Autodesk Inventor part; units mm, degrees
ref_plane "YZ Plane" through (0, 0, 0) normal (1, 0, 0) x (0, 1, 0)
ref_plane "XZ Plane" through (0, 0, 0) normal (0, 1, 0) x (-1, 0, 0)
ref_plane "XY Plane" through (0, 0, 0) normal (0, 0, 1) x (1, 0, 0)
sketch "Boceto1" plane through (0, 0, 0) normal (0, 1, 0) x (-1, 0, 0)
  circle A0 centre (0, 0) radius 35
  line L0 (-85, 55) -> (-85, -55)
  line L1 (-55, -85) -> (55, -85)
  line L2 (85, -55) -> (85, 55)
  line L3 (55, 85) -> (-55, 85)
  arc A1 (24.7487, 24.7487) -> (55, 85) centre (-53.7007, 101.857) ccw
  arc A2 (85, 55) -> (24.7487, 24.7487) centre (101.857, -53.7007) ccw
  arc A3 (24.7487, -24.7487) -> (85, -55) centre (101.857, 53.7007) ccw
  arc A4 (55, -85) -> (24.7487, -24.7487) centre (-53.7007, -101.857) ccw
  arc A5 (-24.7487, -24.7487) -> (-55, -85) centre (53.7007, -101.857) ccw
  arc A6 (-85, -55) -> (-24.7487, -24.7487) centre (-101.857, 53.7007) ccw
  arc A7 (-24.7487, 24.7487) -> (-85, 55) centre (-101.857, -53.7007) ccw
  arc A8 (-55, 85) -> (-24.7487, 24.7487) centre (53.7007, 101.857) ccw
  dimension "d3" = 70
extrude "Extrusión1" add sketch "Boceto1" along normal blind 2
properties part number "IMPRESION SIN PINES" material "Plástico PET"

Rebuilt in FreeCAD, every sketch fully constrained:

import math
import FreeCAD as App
import Part
import Sketcher

V = App.Vector
Q = App.Units.Quantity

doc = App.newDocument("Part")
body = doc.addObject("PartDesign::Body", "Body")

# Sketch on XZ plane
sketch1 = body.newObject("Sketcher::SketchObject", "Sketch")
sketch1.AttachmentSupport = (doc.getObject("XZ_Plane"), [""])
sketch1.MapMode = "FlatFace"
sketch1.addGeometry(Part.ArcOfCircle(Part.Circle(V(-101.857, 53.7007, 0), V(0, 0, 1), 109.999992), math.radians(-81.184948), math.radians(-45.493948)), False)
sketch1.addGeometry(Part.LineSegment(V(-85, -55, 0), V(-85, 55, 0)), False)
sketch1.addGeometry(Part.ArcOfCircle(Part.Circle(V(-101.857, -53.7007, 0), V(0, 0, 1), 110.000003), math.radians(45.493948), math.radians(81.184948)), False)
sketch1.addGeometry(Part.ArcOfCircle(Part.Circle(V(53.7007, 101.857, 0), V(0, 0, 1), 109.999992), math.radians(-171.184948), math.radians(-135.493948)), False)
sketch1.addGeometry(Part.LineSegment(V(-55, 85, 0), V(55, 85, 0)), False)
sketch1.addGeometry(Part.ArcOfCircle(Part.Circle(V(-53.7007, 101.857, 0), V(0, 0, 1), 110.000003), math.radians(-44.506052), math.radians(-8.815052)), False)
sketch1.addGeometry(Part.ArcOfCircle(Part.Circle(V(101.857, -53.7007, 0), V(0, 0, 1), 109.999992), math.radians(98.815052), math.radians(134.506052)), False)
sketch1.addGeometry(Part.LineSegment(V(85, 55, 0), V(85, -55, 0)), False)
sketch1.addGeometry(Part.ArcOfCircle(Part.Circle(V(101.857, 53.7007, 0), V(0, 0, 1), 110.000003), math.radians(-134.506052), math.radians(-98.815052)), False)
sketch1.addGeometry(Part.ArcOfCircle(Part.Circle(V(-53.7007, -101.857, 0), V(0, 0, 1), 109.999992), math.radians(8.815052), math.radians(44.506052)), False)
sketch1.addGeometry(Part.LineSegment(V(55, -85, 0), V(-55, -85, 0)), False)
sketch1.addGeometry(Part.ArcOfCircle(Part.Circle(V(53.7007, -101.857, 0), V(0, 0, 1), 110.000003), math.radians(135.493948), math.radians(171.184948)), False)
sketch1.addConstraint(Sketcher.Constraint("Coincident", 0, 1, 1, 1))
sketch1.addConstraint(Sketcher.Constraint("Coincident", 1, 2, 2, 2))
sketch1.addConstraint(Sketcher.Constraint("Coincident", 2, 1, 3, 2))
sketch1.addConstraint(Sketcher.Constraint("Coincident", 3, 1, 4, 1))
sketch1.addConstraint(Sketcher.Constraint("Coincident", 4, 2, 5, 2))
sketch1.addConstraint(Sketcher.Constraint("Coincident", 5, 1, 6, 2))
sketch1.addConstraint(Sketcher.Constraint("Coincident", 6, 1, 7, 1))
sketch1.addConstraint(Sketcher.Constraint("Coincident", 7, 2, 8, 2))
sketch1.addConstraint(Sketcher.Constraint("Coincident", 8, 1, 9, 2))
sketch1.addConstraint(Sketcher.Constraint("Coincident", 9, 1, 10, 1))
sketch1.addConstraint(Sketcher.Constraint("Coincident", 10, 2, 11, 2))
sketch1.addConstraint(Sketcher.Constraint("Coincident", 11, 1, 0, 2))
sketch1.addConstraint(Sketcher.Constraint("Vertical", 1))
sketch1.addConstraint(Sketcher.Constraint("Horizontal", 4))
sketch1.addConstraint(Sketcher.Constraint("Vertical", 7))
sketch1.addConstraint(Sketcher.Constraint("Horizontal", 10))
sketch1.addConstraint(Sketcher.Constraint("Equal", 0, 2))
sketch1.addConstraint(Sketcher.Constraint("Equal", 2, 3))
sketch1.addConstraint(Sketcher.Constraint("Equal", 3, 5))
sketch1.addConstraint(Sketcher.Constraint("Equal", 5, 6))
sketch1.addConstraint(Sketcher.Constraint("Equal", 6, 8))
sketch1.addConstraint(Sketcher.Constraint("Equal", 8, 9))
sketch1.addConstraint(Sketcher.Constraint("Equal", 9, 11))
sketch1.addConstraint(Sketcher.Constraint("Symmetric", 0, 3, 6, 3, -1, 1))
sketch1.addConstraint(Sketcher.Constraint("Symmetric", 2, 3, 8, 3, -1, 1))
sketch1.addConstraint(Sketcher.Constraint("Symmetric", 3, 3, 9, 3, -1, 1))
sketch1.addConstraint(Sketcher.Constraint("Symmetric", 5, 3, 11, 3, -1, 1))
sketch1.addConstraint(Sketcher.Constraint("Symmetric", 3, 3, 5, 3, -2))
sketch1.addConstraint(Sketcher.Constraint("Symmetric", 2, 3, 6, 3, -2))
sketch1.addConstraint(Sketcher.Constraint("Horizontal", 1, 2, 6, 1))
sketch1.addConstraint(Sketcher.Constraint("Vertical", 4, 2, 9, 1))
sketch1.addConstraint(Sketcher.Constraint("Equal", 10, 1))
sketch1.addConstraint(Sketcher.Constraint("Radius", 0, Q("110 mm")))
sketch1.addConstraint(Sketcher.Constraint("DistanceX", 4, 1, 4, 2, Q("110 mm")))
sketch1.addConstraint(Sketcher.Constraint("DistanceX", 0, 1, -1, 1, Q("85 mm")))
sketch1.addConstraint(Sketcher.Constraint("DistanceY", -1, 1, 3, 1, Q("85 mm")))
sketch1.addConstraint(Sketcher.Constraint("DistanceX", 0, 3, -1, 1, Q("101.857 mm")))
sketch1.addConstraint(Sketcher.Constraint("DistanceY", -1, 1, 3, 3, Q("101.857 mm")))
pad1 = body.newObject("PartDesign::Pad", "Pad")
pad1.Profile = sketch1
pad1.Length = 2
pad1.Reversed = True

doc.recompute()
